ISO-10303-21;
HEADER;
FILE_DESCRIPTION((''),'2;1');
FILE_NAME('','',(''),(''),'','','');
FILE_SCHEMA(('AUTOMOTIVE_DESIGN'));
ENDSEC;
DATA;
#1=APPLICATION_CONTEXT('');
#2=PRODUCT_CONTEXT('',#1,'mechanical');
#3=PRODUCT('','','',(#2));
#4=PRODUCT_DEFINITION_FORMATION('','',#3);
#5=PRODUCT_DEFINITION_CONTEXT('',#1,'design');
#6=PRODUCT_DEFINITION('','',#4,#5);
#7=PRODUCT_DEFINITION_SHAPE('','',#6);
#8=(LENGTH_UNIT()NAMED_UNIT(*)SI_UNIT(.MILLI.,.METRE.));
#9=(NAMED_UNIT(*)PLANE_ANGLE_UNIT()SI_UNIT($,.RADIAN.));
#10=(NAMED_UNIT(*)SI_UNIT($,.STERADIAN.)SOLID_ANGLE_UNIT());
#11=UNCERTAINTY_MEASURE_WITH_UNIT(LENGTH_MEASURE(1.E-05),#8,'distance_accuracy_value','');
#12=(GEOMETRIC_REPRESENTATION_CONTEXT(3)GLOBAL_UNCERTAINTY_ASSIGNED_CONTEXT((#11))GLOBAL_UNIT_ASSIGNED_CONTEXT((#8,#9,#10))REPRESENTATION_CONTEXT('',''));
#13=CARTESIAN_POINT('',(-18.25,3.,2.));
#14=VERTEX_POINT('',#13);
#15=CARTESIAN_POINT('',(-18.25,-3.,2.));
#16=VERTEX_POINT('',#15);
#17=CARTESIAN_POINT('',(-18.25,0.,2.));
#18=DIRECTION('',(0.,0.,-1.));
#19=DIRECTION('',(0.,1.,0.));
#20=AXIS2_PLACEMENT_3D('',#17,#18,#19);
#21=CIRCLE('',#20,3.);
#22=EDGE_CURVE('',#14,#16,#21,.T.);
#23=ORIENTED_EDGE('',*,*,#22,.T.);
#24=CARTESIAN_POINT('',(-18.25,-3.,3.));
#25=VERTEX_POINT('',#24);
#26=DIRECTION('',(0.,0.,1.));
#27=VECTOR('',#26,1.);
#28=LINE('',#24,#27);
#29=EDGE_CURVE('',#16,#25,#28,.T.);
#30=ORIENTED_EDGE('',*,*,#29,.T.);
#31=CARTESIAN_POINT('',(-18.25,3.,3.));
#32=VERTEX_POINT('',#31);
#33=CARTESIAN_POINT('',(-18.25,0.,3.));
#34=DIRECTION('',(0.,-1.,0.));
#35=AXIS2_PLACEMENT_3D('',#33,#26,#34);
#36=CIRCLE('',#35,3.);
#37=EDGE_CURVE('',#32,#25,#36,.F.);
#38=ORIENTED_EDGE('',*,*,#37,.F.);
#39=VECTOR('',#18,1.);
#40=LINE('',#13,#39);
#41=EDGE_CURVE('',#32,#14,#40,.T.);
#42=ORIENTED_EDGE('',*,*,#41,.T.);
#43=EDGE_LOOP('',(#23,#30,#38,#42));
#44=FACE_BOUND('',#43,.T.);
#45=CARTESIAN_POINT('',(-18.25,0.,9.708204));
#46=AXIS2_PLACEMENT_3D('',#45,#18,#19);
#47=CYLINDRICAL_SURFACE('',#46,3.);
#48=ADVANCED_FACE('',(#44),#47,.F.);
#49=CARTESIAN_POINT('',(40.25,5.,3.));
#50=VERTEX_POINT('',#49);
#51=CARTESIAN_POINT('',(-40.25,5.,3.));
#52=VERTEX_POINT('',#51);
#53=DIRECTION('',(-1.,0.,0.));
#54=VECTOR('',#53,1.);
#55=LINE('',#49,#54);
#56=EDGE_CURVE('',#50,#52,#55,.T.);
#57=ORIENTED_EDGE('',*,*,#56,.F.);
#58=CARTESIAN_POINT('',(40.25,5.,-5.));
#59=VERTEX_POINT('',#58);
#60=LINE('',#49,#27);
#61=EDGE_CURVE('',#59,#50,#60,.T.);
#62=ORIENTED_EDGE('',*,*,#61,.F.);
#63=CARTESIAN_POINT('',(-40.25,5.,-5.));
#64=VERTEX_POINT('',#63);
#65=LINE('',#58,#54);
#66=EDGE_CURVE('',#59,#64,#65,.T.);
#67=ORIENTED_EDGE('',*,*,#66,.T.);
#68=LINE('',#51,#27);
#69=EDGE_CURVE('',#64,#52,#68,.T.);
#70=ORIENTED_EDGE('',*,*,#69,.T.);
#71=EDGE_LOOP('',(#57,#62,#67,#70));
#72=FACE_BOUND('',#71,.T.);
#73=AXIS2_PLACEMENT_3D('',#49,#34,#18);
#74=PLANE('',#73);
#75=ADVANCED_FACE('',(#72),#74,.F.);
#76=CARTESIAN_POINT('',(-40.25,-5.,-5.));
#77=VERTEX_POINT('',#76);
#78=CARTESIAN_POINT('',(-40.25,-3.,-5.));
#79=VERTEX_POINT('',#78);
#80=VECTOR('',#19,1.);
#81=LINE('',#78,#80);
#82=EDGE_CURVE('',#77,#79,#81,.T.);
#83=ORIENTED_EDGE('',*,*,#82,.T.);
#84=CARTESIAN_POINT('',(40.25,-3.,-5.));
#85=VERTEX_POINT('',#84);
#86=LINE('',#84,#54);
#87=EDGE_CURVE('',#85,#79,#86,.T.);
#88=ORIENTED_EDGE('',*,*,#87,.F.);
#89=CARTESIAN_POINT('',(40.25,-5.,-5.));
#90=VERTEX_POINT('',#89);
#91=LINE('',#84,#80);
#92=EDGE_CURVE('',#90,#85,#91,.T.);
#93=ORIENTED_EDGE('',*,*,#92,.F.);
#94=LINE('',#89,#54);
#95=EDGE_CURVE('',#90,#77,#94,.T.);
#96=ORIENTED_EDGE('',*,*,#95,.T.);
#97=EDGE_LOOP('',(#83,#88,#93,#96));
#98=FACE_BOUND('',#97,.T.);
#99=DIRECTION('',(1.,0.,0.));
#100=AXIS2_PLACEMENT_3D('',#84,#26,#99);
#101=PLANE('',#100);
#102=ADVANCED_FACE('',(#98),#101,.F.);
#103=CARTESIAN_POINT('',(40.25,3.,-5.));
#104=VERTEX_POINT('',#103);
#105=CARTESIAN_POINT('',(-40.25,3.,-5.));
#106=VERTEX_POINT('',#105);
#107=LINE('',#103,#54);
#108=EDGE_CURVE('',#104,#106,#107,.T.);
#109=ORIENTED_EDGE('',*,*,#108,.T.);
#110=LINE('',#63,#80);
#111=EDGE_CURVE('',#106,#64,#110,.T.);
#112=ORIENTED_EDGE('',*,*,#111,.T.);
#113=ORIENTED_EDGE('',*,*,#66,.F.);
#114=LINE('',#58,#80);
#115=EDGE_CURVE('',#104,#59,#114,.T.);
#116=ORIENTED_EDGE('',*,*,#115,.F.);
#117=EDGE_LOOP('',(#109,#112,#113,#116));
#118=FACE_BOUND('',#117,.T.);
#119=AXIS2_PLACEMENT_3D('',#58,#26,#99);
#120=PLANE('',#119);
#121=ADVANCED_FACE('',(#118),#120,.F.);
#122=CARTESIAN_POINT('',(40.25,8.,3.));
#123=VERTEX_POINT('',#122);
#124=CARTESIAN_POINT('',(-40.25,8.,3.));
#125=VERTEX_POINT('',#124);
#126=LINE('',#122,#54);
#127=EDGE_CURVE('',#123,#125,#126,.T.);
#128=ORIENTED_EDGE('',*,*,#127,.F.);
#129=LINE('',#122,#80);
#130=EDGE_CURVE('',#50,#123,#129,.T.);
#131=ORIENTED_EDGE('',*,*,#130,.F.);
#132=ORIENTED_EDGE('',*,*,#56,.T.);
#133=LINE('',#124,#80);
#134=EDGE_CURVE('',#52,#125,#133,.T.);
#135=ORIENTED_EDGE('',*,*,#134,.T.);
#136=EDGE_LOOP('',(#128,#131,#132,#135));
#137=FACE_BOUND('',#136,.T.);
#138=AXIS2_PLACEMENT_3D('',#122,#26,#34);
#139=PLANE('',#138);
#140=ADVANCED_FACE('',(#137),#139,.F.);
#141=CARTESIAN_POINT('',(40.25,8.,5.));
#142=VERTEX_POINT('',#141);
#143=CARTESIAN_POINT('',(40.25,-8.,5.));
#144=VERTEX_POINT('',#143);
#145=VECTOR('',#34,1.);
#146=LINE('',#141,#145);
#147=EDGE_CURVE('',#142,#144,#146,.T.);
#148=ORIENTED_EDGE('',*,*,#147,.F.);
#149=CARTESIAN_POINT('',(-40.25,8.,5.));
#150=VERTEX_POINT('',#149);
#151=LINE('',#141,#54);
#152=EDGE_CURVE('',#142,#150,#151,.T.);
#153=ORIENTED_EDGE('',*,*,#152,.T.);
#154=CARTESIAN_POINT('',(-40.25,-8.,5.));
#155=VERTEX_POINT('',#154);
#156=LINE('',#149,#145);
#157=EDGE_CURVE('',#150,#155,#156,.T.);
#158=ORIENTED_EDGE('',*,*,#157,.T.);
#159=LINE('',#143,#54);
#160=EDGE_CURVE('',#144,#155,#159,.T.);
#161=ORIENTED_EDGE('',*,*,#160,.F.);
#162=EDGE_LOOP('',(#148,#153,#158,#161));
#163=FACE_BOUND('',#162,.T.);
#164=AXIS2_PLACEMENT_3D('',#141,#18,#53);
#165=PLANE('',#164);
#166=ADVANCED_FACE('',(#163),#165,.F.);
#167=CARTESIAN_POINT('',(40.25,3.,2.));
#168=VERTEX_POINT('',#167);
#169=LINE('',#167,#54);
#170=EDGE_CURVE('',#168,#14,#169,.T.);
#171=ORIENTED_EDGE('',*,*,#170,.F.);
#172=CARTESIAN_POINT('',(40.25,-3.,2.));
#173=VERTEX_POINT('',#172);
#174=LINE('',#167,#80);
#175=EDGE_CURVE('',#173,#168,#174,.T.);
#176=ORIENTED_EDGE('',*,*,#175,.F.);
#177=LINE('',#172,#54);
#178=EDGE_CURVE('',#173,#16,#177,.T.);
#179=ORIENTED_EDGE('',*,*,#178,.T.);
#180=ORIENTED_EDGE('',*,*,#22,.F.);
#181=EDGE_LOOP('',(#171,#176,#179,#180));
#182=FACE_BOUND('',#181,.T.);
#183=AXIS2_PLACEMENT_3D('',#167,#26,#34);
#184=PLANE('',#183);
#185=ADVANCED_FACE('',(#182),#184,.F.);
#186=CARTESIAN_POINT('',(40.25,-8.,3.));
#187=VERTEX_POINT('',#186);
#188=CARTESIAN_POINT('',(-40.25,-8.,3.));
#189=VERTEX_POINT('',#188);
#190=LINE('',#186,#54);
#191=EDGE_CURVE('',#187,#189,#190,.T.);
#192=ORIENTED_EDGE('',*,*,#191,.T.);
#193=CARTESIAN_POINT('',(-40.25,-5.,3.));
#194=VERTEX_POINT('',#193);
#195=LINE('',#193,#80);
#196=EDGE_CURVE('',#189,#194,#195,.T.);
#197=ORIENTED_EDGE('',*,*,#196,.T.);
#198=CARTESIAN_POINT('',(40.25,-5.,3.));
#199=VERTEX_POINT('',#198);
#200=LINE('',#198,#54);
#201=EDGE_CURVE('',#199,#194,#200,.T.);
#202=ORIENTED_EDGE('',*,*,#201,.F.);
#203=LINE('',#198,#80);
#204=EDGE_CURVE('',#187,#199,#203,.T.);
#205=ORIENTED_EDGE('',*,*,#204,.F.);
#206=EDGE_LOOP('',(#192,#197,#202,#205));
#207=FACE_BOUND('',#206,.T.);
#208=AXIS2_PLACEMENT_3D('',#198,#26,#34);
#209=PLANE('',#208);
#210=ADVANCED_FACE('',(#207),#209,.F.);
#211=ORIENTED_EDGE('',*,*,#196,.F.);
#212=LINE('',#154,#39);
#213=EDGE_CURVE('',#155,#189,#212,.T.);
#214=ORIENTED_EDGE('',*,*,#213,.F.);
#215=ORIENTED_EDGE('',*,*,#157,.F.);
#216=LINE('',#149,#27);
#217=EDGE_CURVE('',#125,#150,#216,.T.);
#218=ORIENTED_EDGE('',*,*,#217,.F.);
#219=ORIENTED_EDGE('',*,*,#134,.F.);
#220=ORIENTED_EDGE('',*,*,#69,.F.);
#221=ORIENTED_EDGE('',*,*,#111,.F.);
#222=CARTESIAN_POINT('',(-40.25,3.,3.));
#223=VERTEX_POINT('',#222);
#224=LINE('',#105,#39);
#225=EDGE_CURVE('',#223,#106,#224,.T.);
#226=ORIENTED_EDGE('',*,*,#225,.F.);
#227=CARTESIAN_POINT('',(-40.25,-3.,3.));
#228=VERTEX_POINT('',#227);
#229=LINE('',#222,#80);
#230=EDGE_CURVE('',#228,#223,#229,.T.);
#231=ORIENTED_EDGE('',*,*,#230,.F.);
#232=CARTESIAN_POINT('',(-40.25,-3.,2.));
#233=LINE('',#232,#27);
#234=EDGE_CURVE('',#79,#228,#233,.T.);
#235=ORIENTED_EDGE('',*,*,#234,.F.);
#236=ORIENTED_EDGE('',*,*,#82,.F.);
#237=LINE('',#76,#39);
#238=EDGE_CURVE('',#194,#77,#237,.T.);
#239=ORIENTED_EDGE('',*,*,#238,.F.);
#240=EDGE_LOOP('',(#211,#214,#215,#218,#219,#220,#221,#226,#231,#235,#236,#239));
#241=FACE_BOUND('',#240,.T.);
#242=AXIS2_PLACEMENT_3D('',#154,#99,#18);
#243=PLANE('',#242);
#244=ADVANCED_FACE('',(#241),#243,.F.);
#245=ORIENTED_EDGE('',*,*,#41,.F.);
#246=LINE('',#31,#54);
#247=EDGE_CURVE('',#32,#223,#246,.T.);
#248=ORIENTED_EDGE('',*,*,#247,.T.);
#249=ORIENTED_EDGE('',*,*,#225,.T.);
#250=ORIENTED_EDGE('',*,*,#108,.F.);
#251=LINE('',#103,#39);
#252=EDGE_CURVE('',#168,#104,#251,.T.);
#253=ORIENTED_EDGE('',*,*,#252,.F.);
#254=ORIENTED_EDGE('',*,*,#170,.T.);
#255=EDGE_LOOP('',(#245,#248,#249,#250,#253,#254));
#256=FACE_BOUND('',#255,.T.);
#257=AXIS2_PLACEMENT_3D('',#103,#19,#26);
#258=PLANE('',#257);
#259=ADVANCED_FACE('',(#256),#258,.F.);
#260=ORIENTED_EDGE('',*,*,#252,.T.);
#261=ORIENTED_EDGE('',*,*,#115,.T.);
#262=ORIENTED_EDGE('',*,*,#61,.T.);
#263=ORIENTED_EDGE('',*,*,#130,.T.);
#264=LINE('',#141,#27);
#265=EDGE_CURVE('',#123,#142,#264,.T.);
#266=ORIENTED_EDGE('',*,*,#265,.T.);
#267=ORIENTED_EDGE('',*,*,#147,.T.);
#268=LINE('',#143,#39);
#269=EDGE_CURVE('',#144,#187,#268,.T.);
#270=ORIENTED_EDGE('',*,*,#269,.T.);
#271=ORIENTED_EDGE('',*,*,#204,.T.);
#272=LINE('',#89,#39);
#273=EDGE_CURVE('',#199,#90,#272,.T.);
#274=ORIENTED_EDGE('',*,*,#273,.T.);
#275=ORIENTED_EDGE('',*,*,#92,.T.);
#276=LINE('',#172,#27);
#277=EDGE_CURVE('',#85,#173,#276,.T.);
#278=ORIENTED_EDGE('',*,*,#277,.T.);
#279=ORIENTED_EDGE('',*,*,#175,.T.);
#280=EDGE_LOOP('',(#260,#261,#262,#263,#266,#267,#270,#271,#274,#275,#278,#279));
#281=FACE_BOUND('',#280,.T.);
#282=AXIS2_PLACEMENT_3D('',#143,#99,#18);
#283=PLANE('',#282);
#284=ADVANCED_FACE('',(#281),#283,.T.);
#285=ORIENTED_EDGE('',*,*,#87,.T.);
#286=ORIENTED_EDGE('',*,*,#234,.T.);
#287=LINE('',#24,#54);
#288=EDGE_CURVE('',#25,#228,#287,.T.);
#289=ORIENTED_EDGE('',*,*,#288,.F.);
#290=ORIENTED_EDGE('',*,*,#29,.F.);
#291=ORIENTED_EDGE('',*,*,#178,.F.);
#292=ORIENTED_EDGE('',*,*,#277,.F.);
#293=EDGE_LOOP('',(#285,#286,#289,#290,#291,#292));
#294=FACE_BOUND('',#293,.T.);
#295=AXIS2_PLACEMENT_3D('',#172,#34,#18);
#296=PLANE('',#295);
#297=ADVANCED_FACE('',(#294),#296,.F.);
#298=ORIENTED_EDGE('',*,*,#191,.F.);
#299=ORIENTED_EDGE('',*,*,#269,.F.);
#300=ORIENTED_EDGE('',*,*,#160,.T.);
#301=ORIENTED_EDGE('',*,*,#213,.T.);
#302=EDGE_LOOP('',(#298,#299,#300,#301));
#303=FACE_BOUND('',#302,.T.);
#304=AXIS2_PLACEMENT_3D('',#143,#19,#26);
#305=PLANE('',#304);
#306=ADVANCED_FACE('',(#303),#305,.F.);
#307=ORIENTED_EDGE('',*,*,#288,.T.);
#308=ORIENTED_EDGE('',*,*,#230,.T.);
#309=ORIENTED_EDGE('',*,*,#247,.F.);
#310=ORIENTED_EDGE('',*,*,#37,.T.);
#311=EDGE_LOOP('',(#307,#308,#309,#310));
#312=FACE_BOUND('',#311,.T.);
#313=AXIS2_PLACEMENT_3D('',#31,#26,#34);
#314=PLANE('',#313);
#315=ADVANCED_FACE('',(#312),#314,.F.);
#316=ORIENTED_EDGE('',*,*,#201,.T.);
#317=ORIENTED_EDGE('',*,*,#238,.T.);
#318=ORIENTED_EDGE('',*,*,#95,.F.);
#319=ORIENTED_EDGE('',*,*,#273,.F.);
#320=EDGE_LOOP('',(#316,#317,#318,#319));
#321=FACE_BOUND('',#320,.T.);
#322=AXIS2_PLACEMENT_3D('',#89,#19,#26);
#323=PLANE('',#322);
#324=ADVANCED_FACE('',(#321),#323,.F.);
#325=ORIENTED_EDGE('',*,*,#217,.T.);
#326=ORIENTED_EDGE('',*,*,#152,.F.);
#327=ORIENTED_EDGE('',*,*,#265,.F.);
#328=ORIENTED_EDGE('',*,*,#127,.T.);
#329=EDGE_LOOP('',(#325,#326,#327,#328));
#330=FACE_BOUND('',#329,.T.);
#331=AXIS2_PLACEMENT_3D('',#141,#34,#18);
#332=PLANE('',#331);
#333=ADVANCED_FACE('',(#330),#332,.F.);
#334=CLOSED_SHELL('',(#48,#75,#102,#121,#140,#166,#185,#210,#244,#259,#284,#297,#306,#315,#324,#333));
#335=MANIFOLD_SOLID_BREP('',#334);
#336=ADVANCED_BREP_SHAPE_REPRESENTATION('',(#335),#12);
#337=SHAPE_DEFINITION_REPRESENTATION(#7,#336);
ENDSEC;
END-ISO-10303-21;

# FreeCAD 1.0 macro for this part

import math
import FreeCAD as App
import Part
import Sketcher
Q = App.Units.Quantity

doc = App.newDocument("Part")
body = doc.addObject("PartDesign::Body", "Body")

# Sketch on YZ plane
sketch1 = body.newObject("Sketcher::SketchObject", "Sketch")
sketch1.AttachmentSupport = (doc.getObject("YZ_Plane"), [""])
sketch1.MapMode = "FlatFace"
sketch1.addGeometry([
    Part.LineSegment(App.Vector(5, 3, 0), App.Vector(8, 3, 0)),  # 0
    Part.LineSegment(App.Vector(8, 3, 0), App.Vector(8, 5, 0)),  # 1
    Part.LineSegment(App.Vector(8, 5, 0), App.Vector(-8, 5, 0)),  # 2
    Part.LineSegment(App.Vector(-8, 5, 0), App.Vector(-8, 3, 0)),  # 3
    Part.LineSegment(App.Vector(-8, 3, 0), App.Vector(-5, 3, 0)),  # 4
    Part.LineSegment(App.Vector(-5, 3, 0), App.Vector(-5, -5, 0)),  # 5
    Part.LineSegment(App.Vector(-5, -5, 0), App.Vector(-3, -5, 0)),  # 6
    Part.LineSegment(App.Vector(-3, -5, 0), App.Vector(-3, 2, 0)),  # 7
    Part.LineSegment(App.Vector(-3, 2, 0), App.Vector(3, 2, 0)),  # 8
    Part.LineSegment(App.Vector(3, 2, 0), App.Vector(3, -5, 0)),  # 9
    Part.LineSegment(App.Vector(3, -5, 0), App.Vector(5, -5, 0)),  # 10
    Part.LineSegment(App.Vector(5, -5, 0), App.Vector(5, 3, 0)),  # 11
], False)
sketch1.addConstraint([
    Sketcher.Constraint("Coincident", 0, 2, 1, 1),
    Sketcher.Constraint("Coincident", 1, 2, 2, 1),
    Sketcher.Constraint("Coincident", 2, 2, 3, 1),
    Sketcher.Constraint("Coincident", 3, 2, 4, 1),
    Sketcher.Constraint("Coincident", 4, 2, 5, 1),
    Sketcher.Constraint("Coincident", 5, 2, 6, 1),
    Sketcher.Constraint("Coincident", 6, 2, 7, 1),
    Sketcher.Constraint("Coincident", 7, 2, 8, 1),
    Sketcher.Constraint("Coincident", 8, 2, 9, 1),
    Sketcher.Constraint("Coincident", 9, 2, 10, 1),
    Sketcher.Constraint("Coincident", 10, 2, 11, 1),
    Sketcher.Constraint("Coincident", 11, 2, 0, 1),
    Sketcher.Constraint("Horizontal", 0),
    Sketcher.Constraint("Vertical", 1),
    Sketcher.Constraint("Horizontal", 2),
    Sketcher.Constraint("Vertical", 3),
    Sketcher.Constraint("Horizontal", 4),
    Sketcher.Constraint("Vertical", 5),
    Sketcher.Constraint("Horizontal", 6),
    Sketcher.Constraint("Vertical", 7),
    Sketcher.Constraint("Horizontal", 8),
    Sketcher.Constraint("Vertical", 9),
    Sketcher.Constraint("Horizontal", 10),
    Sketcher.Constraint("Vertical", 11),
    Sketcher.Constraint("Symmetric", 0, 2, 3, 2, -2),
    Sketcher.Constraint("Symmetric", 6, 2, 9, 2, -2),
    Sketcher.Constraint("Equal", 0, 4),
    Sketcher.Constraint("Equal", 10, 1),
    Sketcher.Constraint("DistanceX", 0, 1, 0, 2, Q("3 mm")),
    Sketcher.Constraint("DistanceX", 2, 2, 2, 1, Q("16 mm")),
    Sketcher.Constraint("DistanceX", 6, 1, 6, 2, Q("2 mm")),
    Sketcher.Constraint("DistanceY", 5, 2, 5, 1, Q("8 mm")),
    Sketcher.Constraint("DistanceY", 7, 1, 7, 2, Q("7 mm")),
    Sketcher.Constraint("DistanceY", -1, 1, 0, 2, Q("3 mm")),
])
pad1 = body.newObject("PartDesign::Pad", "Pad")
pad1.Profile = sketch1
pad1.Length = 80.5
pad1.Midplane = True

# Sketch on YZ plane
sketch2 = body.newObject("Sketcher::SketchObject", "Sketch001")
sketch2.AttachmentSupport = (doc.getObject("YZ_Plane"), [""])
sketch2.MapMode = "FlatFace"
sketch2.AttachmentOffset = App.Placement(App.Vector(0, 0, -40.25), App.Rotation())
sketch2.addGeometry([
    Part.LineSegment(App.Vector(3, 2, 0), App.Vector(-3, 2, 0)),
    Part.LineSegment(App.Vector(-3, 2, 0), App.Vector(-3, 3, 0)),
    Part.LineSegment(App.Vector(-3, 3, 0), App.Vector(3, 3, 0)),
    Part.LineSegment(App.Vector(3, 3, 0), App.Vector(3, 2, 0)),
], False)
sketch2.addConstraint([
    Sketcher.Constraint("Coincident", 0, 2, 1, 1),
    Sketcher.Constraint("Coincident", 1, 2, 2, 1),
    Sketcher.Constraint("Coincident", 2, 2, 3, 1),
    Sketcher.Constraint("Coincident", 3, 2, 0, 1),
    Sketcher.Constraint("Horizontal", 0),
    Sketcher.Constraint("Vertical", 1),
    Sketcher.Constraint("Horizontal", 2),
    Sketcher.Constraint("Vertical", 3),
    Sketcher.Constraint("DistanceX", 0, 2, 0, 1, Q("6 mm")),
    Sketcher.Constraint("DistanceY", 1, 1, 1, 2, Q("1 mm")),
    Sketcher.Constraint("DistanceX", 0, 2, -1, 1, Q("3 mm")),
    Sketcher.Constraint("DistanceY", -1, 1, 0, 2, Q("2 mm")),
])
pocket1 = body.newObject("PartDesign::Pocket", "Pocket")
pocket1.Profile = sketch2
pocket1.Length = 22
pocket1.Reversed = True

# Sketch on XY plane
sketch3 = body.newObject("Sketcher::SketchObject", "Sketch002")
sketch3.AttachmentSupport = (doc.getObject("XY_Plane"), [""])
sketch3.MapMode = "FlatFace"
sketch3.AttachmentOffset = App.Placement(App.Vector(0, 0, 2), App.Rotation())
sketch3.addGeometry([
    Part.LineSegment(App.Vector(-18.25, -3, 0), App.Vector(-18.25, 3, 0)),
    Part.ArcOfCircle(Part.Circle(App.Vector(-18.25, 0, 0), App.Vector(0, 0, 1), 3), math.radians(-90), math.radians(90)),
], False)
sketch3.addConstraint([
    Sketcher.Constraint("Coincident", 0, 1, 1, 1),
    Sketcher.Constraint("Coincident", 1, 2, 0, 2),
    Sketcher.Constraint("Vertical", 0),
    Sketcher.Constraint("PointOnObject", 1, 3, -1),
    Sketcher.Constraint("Vertical", 1, 3, 0, 1),
    Sketcher.Constraint("Radius", 1, Q("3 mm")),
    Sketcher.Constraint("DistanceX", 1, 3, -1, 1, Q("18.25 mm")),
])
pocket2 = body.newObject("PartDesign::Pocket", "Pocket001")
pocket2.Profile = sketch3
pocket2.Length = 1
pocket2.Reversed = True

doc.recompute()
